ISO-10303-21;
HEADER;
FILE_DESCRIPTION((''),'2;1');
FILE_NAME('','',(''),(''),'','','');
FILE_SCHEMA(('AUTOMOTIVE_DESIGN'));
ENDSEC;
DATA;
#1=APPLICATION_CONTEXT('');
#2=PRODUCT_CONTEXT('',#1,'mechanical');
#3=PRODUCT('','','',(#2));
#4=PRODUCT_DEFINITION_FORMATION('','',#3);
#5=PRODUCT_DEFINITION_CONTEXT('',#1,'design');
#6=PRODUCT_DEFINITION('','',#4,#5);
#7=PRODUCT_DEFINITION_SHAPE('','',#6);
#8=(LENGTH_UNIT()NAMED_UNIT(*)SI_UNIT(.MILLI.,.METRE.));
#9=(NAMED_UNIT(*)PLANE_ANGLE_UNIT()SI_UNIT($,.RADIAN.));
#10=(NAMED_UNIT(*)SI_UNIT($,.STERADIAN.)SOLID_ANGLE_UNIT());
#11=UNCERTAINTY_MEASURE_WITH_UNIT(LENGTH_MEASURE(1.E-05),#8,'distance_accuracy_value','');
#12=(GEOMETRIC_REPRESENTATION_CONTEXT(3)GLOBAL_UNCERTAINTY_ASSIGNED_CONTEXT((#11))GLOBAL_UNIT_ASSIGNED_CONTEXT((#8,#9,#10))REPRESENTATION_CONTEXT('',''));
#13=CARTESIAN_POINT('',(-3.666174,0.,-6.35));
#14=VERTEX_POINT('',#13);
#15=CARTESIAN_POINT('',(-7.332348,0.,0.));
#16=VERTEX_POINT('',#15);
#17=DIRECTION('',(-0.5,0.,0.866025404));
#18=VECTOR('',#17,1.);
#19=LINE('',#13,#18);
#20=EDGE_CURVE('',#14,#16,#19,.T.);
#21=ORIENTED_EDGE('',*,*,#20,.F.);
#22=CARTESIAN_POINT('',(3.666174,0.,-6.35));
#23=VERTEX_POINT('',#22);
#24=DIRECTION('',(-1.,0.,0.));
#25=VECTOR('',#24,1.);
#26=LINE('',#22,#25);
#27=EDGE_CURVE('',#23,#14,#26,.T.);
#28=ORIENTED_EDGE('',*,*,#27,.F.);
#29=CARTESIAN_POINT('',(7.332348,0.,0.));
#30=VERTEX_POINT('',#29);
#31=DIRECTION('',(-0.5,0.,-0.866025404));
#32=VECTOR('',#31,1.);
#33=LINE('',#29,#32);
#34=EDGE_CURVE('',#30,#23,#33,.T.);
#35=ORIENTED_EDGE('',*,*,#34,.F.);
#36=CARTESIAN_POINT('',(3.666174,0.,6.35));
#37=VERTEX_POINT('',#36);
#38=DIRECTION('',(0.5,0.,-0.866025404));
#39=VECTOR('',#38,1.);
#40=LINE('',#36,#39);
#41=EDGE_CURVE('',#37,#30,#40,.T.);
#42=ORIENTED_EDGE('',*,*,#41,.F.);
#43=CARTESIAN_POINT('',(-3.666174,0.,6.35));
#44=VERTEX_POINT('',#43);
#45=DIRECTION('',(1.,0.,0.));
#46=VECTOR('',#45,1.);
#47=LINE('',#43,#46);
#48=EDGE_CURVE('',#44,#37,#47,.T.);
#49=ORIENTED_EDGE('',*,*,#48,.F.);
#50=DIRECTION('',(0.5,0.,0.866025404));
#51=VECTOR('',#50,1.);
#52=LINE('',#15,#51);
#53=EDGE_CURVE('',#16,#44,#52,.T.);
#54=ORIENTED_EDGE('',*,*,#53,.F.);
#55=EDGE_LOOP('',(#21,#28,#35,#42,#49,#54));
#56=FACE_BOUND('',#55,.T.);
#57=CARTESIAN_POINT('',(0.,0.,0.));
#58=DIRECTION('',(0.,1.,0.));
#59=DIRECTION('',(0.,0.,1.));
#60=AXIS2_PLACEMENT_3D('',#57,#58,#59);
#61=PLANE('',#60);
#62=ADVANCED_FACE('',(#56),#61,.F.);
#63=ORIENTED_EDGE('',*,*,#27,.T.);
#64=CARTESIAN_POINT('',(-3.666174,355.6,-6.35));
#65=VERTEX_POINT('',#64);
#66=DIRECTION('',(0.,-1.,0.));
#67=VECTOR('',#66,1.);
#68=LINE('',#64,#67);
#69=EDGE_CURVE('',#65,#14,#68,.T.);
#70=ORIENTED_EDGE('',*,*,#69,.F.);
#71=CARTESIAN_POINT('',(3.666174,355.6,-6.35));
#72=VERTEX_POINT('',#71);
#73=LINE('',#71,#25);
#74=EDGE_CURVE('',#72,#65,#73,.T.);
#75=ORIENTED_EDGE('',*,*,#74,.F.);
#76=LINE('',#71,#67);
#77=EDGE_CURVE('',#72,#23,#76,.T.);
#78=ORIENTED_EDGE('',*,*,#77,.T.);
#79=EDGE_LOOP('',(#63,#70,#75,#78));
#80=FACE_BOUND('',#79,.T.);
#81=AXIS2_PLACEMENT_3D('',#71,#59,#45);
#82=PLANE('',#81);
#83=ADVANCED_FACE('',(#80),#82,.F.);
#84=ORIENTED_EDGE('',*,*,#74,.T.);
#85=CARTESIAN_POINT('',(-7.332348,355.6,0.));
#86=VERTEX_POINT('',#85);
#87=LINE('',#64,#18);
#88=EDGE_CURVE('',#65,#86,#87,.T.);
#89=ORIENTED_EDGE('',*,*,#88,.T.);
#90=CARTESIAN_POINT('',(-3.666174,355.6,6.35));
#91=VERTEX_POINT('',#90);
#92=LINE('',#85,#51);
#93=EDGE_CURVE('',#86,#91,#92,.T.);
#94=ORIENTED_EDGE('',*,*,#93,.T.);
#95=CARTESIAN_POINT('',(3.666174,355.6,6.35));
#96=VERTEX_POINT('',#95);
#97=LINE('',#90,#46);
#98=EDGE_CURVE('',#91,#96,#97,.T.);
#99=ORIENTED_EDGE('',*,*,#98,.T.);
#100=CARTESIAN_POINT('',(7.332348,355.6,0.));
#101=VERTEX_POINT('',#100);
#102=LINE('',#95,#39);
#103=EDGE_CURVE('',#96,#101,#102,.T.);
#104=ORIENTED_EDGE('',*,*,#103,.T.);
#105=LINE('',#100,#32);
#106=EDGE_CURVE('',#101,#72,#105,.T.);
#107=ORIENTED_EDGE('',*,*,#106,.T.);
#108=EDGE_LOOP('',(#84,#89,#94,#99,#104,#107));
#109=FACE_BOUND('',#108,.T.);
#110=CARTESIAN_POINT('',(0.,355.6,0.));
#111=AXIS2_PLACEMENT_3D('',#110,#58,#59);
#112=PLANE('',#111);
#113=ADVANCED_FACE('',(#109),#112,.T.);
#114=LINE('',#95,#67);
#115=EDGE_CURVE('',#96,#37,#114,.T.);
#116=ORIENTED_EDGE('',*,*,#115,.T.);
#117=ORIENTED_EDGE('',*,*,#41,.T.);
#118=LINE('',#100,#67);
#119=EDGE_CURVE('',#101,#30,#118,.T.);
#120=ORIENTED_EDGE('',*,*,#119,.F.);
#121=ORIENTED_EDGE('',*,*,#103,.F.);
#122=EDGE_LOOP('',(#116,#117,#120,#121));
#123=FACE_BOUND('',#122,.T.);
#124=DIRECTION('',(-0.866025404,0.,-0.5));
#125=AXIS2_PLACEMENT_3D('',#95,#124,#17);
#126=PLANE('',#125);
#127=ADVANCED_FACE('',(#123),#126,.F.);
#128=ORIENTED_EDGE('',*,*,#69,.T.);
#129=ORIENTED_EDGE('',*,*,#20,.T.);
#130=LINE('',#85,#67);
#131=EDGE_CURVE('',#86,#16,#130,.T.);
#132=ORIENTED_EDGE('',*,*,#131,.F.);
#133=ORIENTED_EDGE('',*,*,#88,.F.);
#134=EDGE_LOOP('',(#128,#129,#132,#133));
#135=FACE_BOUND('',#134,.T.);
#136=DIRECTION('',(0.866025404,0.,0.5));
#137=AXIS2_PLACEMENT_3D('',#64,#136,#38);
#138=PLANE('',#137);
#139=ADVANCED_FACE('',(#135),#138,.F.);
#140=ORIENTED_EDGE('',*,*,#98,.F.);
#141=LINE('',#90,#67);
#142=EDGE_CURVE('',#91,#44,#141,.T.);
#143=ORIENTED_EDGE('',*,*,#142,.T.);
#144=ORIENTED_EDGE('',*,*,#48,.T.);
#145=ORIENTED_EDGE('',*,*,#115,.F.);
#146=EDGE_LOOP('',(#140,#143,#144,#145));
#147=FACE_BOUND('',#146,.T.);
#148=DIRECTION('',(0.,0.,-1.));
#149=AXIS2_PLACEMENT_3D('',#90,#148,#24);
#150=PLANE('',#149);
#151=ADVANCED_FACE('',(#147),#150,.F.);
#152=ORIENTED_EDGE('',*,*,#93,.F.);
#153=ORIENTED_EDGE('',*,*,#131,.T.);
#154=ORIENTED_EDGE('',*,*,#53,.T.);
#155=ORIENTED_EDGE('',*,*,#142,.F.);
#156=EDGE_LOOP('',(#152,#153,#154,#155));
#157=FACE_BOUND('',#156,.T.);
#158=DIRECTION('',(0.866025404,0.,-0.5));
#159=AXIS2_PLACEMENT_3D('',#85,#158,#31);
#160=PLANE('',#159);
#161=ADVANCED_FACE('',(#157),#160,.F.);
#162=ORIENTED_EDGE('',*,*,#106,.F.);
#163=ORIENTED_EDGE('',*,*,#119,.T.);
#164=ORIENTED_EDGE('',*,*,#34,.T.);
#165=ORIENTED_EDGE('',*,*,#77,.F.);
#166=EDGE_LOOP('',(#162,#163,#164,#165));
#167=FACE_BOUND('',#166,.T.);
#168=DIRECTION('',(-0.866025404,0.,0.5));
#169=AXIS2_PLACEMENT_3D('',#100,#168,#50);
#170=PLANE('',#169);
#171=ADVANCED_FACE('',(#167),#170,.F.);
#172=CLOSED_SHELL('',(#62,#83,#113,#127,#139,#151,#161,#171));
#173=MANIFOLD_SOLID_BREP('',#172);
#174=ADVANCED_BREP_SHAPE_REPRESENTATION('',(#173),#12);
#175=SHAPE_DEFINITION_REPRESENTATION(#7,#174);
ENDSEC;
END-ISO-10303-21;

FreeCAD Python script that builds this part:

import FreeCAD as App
import Part
import Sketcher

V = App.Vector
Q = App.Units.Quantity

doc = App.newDocument("Part")
params = doc.addObject("Spreadsheet::Sheet", "Params")
for row, (alias, value) in enumerate([
    ("pad1_length", "14 in"),
], start=1):
    params.set(f"A{row}", alias)
    params.set(f"B{row}", "=" + value)
    params.setAlias(f"B{row}", alias)

body = doc.addObject("PartDesign::Body", "Body")

sketch1 = body.newObject("Sketcher::SketchObject", "Sketch")
sketch1.AttachmentSupport = (doc.getObject("XZ_Plane"), [""])
sketch1.MapMode = "FlatFace"
sketch1.addGeometry([
    Part.LineSegment(V(4, -6, 0), V(-4, -6, 0)),
    Part.LineSegment(V(-4, -6, 0), V(-7, 0, 0)),
    Part.LineSegment(V(-7, 0, 0), V(-4, 6, 0)),
    Part.LineSegment(V(-4, 6, 0), V(4, 6, 0)),
    Part.LineSegment(V(4, 6, 0), V(7, 0, 0)),
    Part.LineSegment(V(7, 0, 0), V(4, -6, 0)),
], False)
sketch1.addConstraint([
    Sketcher.Constraint("Coincident", 0, 2, 1, 1),
    Sketcher.Constraint("Coincident", 1, 2, 2, 1),
    Sketcher.Constraint("Coincident", 2, 2, 3, 1),
    Sketcher.Constraint("Coincident", 3, 2, 4, 1),
    Sketcher.Constraint("Coincident", 4, 2, 5, 1),
    Sketcher.Constraint("Coincident", 5, 2, 0, 1),
    Sketcher.Constraint("Horizontal", 0),
    Sketcher.Constraint("Horizontal", 3),
    Sketcher.Constraint("Symmetric", 0, 2, 3, 2, -1, 1),
    Sketcher.Constraint("Symmetric", 1, 2, 4, 2, -1, 1),
    Sketcher.Constraint("PointOnObject", 1, 2, -1),
    Sketcher.Constraint("Parallel", 2, 5),
    Sketcher.Constraint("Vertical", 0, 2, 2, 2),
    Sketcher.Constraint("Angle", 1, Q("120 deg")),
    Sketcher.Constraint("DistanceY", 0, 2, 2, 2, Q("0.5 in")),
    Sketcher.Constraint("DistanceX", 0, 2, 0, 1, Q("7.332348 mm")),
])
pad1 = body.newObject("PartDesign::Pad", "Pad")
pad1.Profile = sketch1
pad1.setExpression("Length", "Params.pad1_length")
pad1.Reversed = True

doc.recompute()
